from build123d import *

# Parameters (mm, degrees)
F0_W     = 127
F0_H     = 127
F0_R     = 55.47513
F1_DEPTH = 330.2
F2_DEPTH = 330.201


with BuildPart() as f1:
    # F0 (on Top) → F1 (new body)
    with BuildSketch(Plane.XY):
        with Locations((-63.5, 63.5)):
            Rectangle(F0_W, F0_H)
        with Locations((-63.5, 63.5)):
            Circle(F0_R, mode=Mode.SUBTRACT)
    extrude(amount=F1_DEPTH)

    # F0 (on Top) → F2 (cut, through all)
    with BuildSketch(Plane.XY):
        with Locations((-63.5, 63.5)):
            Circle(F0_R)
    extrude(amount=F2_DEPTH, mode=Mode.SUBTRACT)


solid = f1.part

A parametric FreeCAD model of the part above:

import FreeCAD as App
import Part
import Sketcher
from FreeCAD import Vector
Q = App.Units.Quantity

doc = App.newDocument("Part")
body = doc.addObject("PartDesign::Body", "Body")

# Sketch on XY plane
sketch1 = doc.addObject("Sketcher::SketchObject", "Sketch")
body.addObject(sketch1)
sketch1.AttachmentSupport = (doc.XY_Plane, [""])
sketch1.MapMode = "FlatFace"
sketch1.addGeometry(Part.LineSegment(Vector(-127, 127, 0), Vector(-127, 0, 0)), False)
sketch1.addGeometry(Part.LineSegment(Vector(-127, 0, 0), Vector(0, 0, 0)), False)
sketch1.addGeometry(Part.LineSegment(Vector(0, 0, 0), Vector(0, 127, 0)), False)
sketch1.addGeometry(Part.LineSegment(Vector(0, 127, 0), Vector(-127, 127, 0)), False)
sketch1.addGeometry(Part.Circle(Vector(-64, 64, 0), Vector(0, 0, 1), 55), False)
sketch1.addConstraint(Sketcher.Constraint("Coincident", 0, 2, 1, 1))
sketch1.addConstraint(Sketcher.Constraint("Coincident", 1, 2, 2, 1))
sketch1.addConstraint(Sketcher.Constraint("Coincident", 2, 2, 3, 1))
sketch1.addConstraint(Sketcher.Constraint("Coincident", 3, 2, 0, 1))
sketch1.addConstraint(Sketcher.Constraint("Vertical", 0))
sketch1.addConstraint(Sketcher.Constraint("Horizontal", 1))
sketch1.addConstraint(Sketcher.Constraint("Vertical", 2))
sketch1.addConstraint(Sketcher.Constraint("Horizontal", 3))
sketch1.addConstraint(Sketcher.Constraint("Coincident", 1, 2, -1, 1))
sketch1.addConstraint(Sketcher.Constraint("Equal", 3, 0))
sketch1.addConstraint(Sketcher.Constraint("DistanceX", 1, 1, 1, 2, Q("5 in")))
sketch1.addConstraint(Sketcher.Constraint("DistanceX", 4, 3, -1, 1, Q("2.5 in")))
sketch1.addConstraint(Sketcher.Constraint("DistanceY", -1, 1, 4, 3, Q("2.5 in")))
sketch1.addConstraint(Sketcher.Constraint("Diameter", 4, Q("110.95026 mm")))
pad1 = doc.addObject("PartDesign::Pad", "Pad")
body.addObject(pad1)
pad1.Profile = sketch1
pad1.Length = Q("13 in")

# Sketch on XY plane
sketch2 = doc.addObject("Sketcher::SketchObject", "Sketch001")
body.addObject(sketch2)
sketch2.AttachmentSupport = (doc.XY_Plane, [""])
sketch2.MapMode = "FlatFace"
sketch2.addGeometry(Part.Circle(Vector(-64, 64, 0), Vector(0, 0, 1), 55), False)
sketch2.addConstraint(Sketcher.Constraint("DistanceX", 0, 3, -1, 1, Q("2.5 in")))
sketch2.addConstraint(Sketcher.Constraint("DistanceY", -1, 1, 0, 3, Q("2.5 in")))
sketch2.addConstraint(Sketcher.Constraint("Diameter", 0, Q("110.95026 mm")))
pocket1 = doc.addObject("PartDesign::Pocket", "Pocket")
body.addObject(pocket1)
pocket1.Profile = sketch2
pocket1.Type = "ThroughAll"
pocket1.Reversed = True

doc.recompute()
